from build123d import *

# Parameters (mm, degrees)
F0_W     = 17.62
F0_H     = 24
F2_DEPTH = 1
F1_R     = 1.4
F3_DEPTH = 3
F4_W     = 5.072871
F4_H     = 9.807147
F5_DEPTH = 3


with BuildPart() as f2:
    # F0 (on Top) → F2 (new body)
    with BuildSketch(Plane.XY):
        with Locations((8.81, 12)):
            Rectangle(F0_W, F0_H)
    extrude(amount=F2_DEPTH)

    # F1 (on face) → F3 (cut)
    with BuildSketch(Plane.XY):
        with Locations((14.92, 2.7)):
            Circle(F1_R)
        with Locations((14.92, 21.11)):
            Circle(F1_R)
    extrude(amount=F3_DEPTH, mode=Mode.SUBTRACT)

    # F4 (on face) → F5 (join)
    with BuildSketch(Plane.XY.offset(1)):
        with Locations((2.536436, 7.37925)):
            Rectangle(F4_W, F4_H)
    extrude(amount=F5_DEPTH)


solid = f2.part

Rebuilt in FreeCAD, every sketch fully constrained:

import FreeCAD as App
import Part
import Sketcher

V = App.Vector


def add_polygon(sketch, points):
    """Adds a closed chain of lines whose ends are joined by coincident constraints."""
    first, n = sketch.GeometryCount, len(points)
    for a, b in zip(points, points[1:] + points[:1]):
        sketch.addGeometry(Part.LineSegment(App.Vector(*a, 0), App.Vector(*b, 0)), False)
    for i in range(n):
        sketch.addConstraint(Sketcher.Constraint("Coincident", first + i, 2, first + (i + 1) % n, 1))

doc = App.newDocument("Part")
params = doc.addObject("Spreadsheet::Sheet", "Params")
for row, (alias, value) in enumerate([
    ("sketch1_height", "24 mm"),
    ("sketch1_width", "17.62 mm"),
    ("pad1_length", "1 mm"),
    ("sketch2_diameter", "2.8 mm"),
    ("pocket1_length", "3 mm"),
    ("pad2_length", "3 mm"),
], start=1):
    params.set(f"A{row}", alias)
    params.set(f"B{row}", "=" + value)
    params.setAlias(f"B{row}", alias)

body = doc.addObject("PartDesign::Body", "Body")

sketch1 = body.newObject("Sketcher::SketchObject", "Sketch")
sketch1.AttachmentSupport = (doc.getObject("XY_Plane"), [""])
sketch1.MapMode = "FlatFace"
add_polygon(sketch1, [(0, 24), (0, 0), (18, 0), (18, 24)])
sketch1.addConstraint(Sketcher.Constraint("Vertical", 0))
sketch1.addConstraint(Sketcher.Constraint("Horizontal", 1))
sketch1.addConstraint(Sketcher.Constraint("Vertical", 2))
sketch1.addConstraint(Sketcher.Constraint("Horizontal", 3))
sketch1.addConstraint(Sketcher.Constraint("Coincident", 0, 2, -1, 1))
sketch1.addConstraint(Sketcher.Constraint("DistanceY", 0, 2, 0, 1, 24.0))
sketch1.addConstraint(Sketcher.Constraint("DistanceX", 1, 1, 1, 2, 17.62))
sketch1.setExpression("Constraints[9]", "Params.sketch1_height")
sketch1.setExpression("Constraints[10]", "Params.sketch1_width")
pad1 = body.newObject("PartDesign::Pad", "Pad")
pad1.Profile = sketch1
pad1.setExpression("Length", "Params.pad1_length")

sketch2 = body.newObject("Sketcher::SketchObject", "Sketch001")
sketch2.AttachmentSupport = (doc.getObject("XY_Plane"), [""])
sketch2.MapMode = "FlatFace"
sketch2.addGeometry(Part.Circle(V(14.9, 2.7, 0), V(0, 0, 1), 1.4), False)
sketch2.addGeometry(Part.Circle(V(14.9, 21.1, 0), V(0, 0, 1), 1.4), False)
sketch2.addConstraint(Sketcher.Constraint("Equal", 0, 1))
sketch2.addConstraint(Sketcher.Constraint("Vertical", 0, 3, 1, 3))
sketch2.addConstraint(Sketcher.Constraint("Diameter", 0, 2.8))
sketch2.addConstraint(Sketcher.Constraint("DistanceY", -1, 1, 0, 3, 2.7))
sketch2.addConstraint(Sketcher.Constraint("DistanceX", -1, 1, 0, 3, 14.92))
sketch2.addConstraint(Sketcher.Constraint("DistanceY", -1, 1, 1, 3, 21.11))
sketch2.setExpression("Constraints[2]", "Params.sketch2_diameter")
pocket1 = body.newObject("PartDesign::Pocket", "Pocket")
pocket1.Profile = sketch2
pocket1.setExpression("Length", "Params.pocket1_length")
pocket1.Reversed = True

sketch3 = body.newObject("Sketcher::SketchObject", "Sketch002")
sketch3.AttachmentSupport = (doc.getObject("XY_Plane"), [""])
sketch3.MapMode = "FlatFace"
sketch3.AttachmentOffset = App.Placement(V(0, 0, 1), App.Rotation())
add_polygon(sketch3, [(0, 12), (0, 2), (5, 2), (5, 12)])
sketch3.addConstraint(Sketcher.Constraint("Vertical", 0))
sketch3.addConstraint(Sketcher.Constraint("Horizontal", 1))
sketch3.addConstraint(Sketcher.Constraint("Vertical", 2))
sketch3.addConstraint(Sketcher.Constraint("Horizontal", 3))
sketch3.addConstraint(Sketcher.Constraint("PointOnObject", 0, 2, -2))
sketch3.addConstraint(Sketcher.Constraint("DistanceX", 1, 1, 1, 2, 5.072871))
sketch3.addConstraint(Sketcher.Constraint("DistanceY", 0, 2, 0, 1, 9.807147))
sketch3.addConstraint(Sketcher.Constraint("DistanceY", -1, 1, 0, 2, 2.475677))
pad2 = body.newObject("PartDesign::Pad", "Pad001")
pad2.Profile = sketch3
pad2.setExpression("Length", "Params.pad2_length")

doc.recompute()
